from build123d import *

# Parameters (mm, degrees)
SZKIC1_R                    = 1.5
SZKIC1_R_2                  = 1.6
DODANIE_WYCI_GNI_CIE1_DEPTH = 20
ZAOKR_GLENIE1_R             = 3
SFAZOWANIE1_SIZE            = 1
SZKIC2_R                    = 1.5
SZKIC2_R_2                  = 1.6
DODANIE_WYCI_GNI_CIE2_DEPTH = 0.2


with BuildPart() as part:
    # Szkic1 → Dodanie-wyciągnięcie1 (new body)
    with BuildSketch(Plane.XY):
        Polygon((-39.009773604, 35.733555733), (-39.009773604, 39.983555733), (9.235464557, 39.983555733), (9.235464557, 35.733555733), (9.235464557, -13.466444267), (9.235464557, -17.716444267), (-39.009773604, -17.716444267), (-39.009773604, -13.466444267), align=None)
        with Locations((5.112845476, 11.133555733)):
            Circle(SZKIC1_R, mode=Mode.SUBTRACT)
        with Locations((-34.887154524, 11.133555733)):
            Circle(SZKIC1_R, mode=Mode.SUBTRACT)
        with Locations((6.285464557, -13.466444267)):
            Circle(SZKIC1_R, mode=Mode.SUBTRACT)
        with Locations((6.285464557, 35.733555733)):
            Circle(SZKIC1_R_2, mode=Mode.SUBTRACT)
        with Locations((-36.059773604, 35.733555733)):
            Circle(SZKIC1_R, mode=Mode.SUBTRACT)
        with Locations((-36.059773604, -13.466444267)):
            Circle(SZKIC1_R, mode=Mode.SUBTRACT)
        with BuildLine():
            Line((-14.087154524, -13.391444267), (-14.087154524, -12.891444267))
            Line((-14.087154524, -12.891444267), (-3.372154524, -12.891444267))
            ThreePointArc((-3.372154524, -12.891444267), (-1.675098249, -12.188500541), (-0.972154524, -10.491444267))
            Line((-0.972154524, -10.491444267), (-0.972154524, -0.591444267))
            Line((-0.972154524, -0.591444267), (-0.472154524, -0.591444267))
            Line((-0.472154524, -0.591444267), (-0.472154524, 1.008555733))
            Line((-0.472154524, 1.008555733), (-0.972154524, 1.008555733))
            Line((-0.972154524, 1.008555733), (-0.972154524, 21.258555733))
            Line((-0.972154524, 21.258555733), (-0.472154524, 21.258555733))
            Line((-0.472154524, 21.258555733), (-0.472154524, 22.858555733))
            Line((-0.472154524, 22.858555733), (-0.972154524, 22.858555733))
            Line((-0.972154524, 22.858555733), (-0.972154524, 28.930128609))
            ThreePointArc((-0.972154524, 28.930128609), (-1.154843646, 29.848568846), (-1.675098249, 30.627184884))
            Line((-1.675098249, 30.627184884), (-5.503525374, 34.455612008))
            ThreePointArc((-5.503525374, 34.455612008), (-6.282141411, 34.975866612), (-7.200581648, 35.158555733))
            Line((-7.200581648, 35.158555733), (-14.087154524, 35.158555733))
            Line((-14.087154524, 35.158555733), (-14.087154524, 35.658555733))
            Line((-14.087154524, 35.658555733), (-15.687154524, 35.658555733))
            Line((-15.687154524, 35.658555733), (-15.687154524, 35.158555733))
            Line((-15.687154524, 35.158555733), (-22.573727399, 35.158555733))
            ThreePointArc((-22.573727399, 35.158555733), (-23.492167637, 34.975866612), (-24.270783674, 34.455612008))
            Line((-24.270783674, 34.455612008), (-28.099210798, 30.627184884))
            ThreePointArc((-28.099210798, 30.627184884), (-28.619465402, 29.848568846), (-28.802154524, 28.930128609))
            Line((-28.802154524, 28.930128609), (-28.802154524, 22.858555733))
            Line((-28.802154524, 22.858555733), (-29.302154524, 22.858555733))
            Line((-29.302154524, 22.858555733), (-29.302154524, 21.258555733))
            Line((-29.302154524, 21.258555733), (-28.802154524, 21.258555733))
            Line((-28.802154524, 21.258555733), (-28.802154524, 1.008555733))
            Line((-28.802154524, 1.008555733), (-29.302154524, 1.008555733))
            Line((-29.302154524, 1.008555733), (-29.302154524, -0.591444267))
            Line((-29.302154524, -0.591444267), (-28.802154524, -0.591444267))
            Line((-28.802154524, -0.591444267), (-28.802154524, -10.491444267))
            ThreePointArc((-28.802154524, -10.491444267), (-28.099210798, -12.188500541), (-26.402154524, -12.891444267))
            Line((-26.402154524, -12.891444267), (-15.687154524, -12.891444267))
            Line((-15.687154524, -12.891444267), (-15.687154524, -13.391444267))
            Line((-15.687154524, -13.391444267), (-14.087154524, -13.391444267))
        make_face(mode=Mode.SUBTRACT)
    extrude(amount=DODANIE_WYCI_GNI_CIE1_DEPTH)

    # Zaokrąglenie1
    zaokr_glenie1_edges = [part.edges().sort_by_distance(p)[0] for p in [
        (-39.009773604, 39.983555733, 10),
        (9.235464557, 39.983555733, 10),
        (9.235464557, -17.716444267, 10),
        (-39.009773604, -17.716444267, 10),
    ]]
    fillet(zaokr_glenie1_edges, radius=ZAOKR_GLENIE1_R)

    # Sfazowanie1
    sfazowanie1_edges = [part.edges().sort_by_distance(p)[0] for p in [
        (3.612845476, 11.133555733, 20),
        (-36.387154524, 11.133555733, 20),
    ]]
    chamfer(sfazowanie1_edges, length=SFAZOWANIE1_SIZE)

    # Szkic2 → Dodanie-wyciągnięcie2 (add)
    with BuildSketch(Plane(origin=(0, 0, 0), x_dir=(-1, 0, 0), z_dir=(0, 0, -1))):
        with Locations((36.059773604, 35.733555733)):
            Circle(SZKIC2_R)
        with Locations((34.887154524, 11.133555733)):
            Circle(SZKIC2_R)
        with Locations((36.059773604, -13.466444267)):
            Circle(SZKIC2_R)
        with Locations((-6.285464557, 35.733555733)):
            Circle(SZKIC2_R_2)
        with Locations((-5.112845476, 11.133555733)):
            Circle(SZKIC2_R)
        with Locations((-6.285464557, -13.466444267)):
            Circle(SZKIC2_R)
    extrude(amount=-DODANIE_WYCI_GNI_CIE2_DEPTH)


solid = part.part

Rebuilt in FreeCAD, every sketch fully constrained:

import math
import FreeCAD as App
import Part
import Sketcher

V = App.Vector
Q = App.Units.Quantity


def edges_at(feature, points):
    """Names of the edges that pass closest to the given points."""
    edges = feature.Shape.Edges
    near = lambda p: min(range(len(edges)), key=lambda i: edges[i].distToShape(Part.Vertex(*p))[0])
    return sorted({f"Edge{near(p) + 1}" for p in points})

doc = App.newDocument("Part")
body = doc.addObject("PartDesign::Body", "Body")

sketch1 = body.newObject("Sketcher::SketchObject", "Sketch")
sketch1.AttachmentSupport = (doc.getObject("XY_Plane"), [""])
sketch1.MapMode = "FlatFace"
sketch1.addGeometry([
    Part.LineSegment(V(-39, 40, 0), V(-39, -17.7, 0)),
    Part.LineSegment(V(-39, -17.7, 0), V(9.2, -17.7, 0)),
    Part.LineSegment(V(9.2, -17.7, 0), V(9.2, 40, 0)),
    Part.LineSegment(V(9.2, 40, 0), V(-39, 40, 0)),
    Part.Circle(V(6.3, -13.5, 0), V(0, 0, 1), 1.5),
    Part.Circle(V(5.1, 11.1, 0), V(0, 0, 1), 1.5),
    Part.Circle(V(-36.1, -13.5, 0), V(0, 0, 1), 1.5),
    Part.LineSegment(V(-14.1, -13.4, 0), V(-15.7, -13.4, 0)),
    Part.LineSegment(V(-15.7, -13.4, 0), V(-15.7, -12.9, 0)),
    Part.LineSegment(V(-15.7, -12.9, 0), V(-26.4, -12.9, 0)),
    Part.ArcOfCircle(Part.Circle(V(-26.4, -10.5, 0), V(0, 0, 1), 2.4), math.radians(-180), math.radians(-90)),
    Part.LineSegment(V(-28.8, -10.5, 0), V(-28.8, -0.6, 0)),
    Part.LineSegment(V(-28.8, -0.6, 0), V(-29.3, -0.6, 0)),
    Part.LineSegment(V(-29.3, -0.6, 0), V(-29.3, 1, 0)),
    Part.LineSegment(V(-29.3, 1, 0), V(-28.8, 1, 0)),
    Part.LineSegment(V(-28.8, 1, 0), V(-28.8, 21.3, 0)),
    Part.LineSegment(V(-28.8, 21.3, 0), V(-29.3, 21.3, 0)),
    Part.LineSegment(V(-29.3, 21.3, 0), V(-29.3, 22.9, 0)),
    Part.LineSegment(V(-29.3, 22.9, 0), V(-28.8, 22.9, 0)),
    Part.LineSegment(V(-28.8, 22.9, 0), V(-28.8, 28.9, 0)),
    Part.ArcOfCircle(Part.Circle(V(-26.4, 28.9, 0), V(0, 0, 1), 2.4), math.radians(135), math.radians(180)),
    Part.LineSegment(V(-28.1, 30.6, 0), V(-24.3, 34.5, 0)),
    Part.ArcOfCircle(Part.Circle(V(-22.6, 32.8, 0), V(0, 0, 1), 2.4), math.radians(90), math.radians(135)),
    Part.LineSegment(V(-22.6, 35.2, 0), V(-15.7, 35.2, 0)),
    Part.LineSegment(V(-15.7, 35.2, 0), V(-15.7, 35.7, 0)),
    Part.LineSegment(V(-15.7, 35.7, 0), V(-14.1, 35.7, 0)),
    Part.LineSegment(V(-14.1, 35.7, 0), V(-14.1, 35.2, 0)),
    Part.LineSegment(V(-14.1, 35.2, 0), V(-7.2, 35.2, 0)),
    Part.ArcOfCircle(Part.Circle(V(-7.2, 32.8, 0), V(0, 0, 1), 2.4), math.radians(45), math.radians(90)),
    Part.LineSegment(V(-5.5, 34.5, 0), V(-1.7, 30.6, 0)),
    Part.ArcOfCircle(Part.Circle(V(-3.4, 28.9, 0), V(0, 0, 1), 2.4), math.radians(0), math.radians(45)),
    Part.LineSegment(V(-1, 28.9, 0), V(-1, 22.9, 0)),
    Part.LineSegment(V(-1, 22.9, 0), V(-0.5, 22.9, 0)),
    Part.LineSegment(V(-0.5, 22.9, 0), V(-0.5, 21.3, 0)),
    Part.LineSegment(V(-0.5, 21.3, 0), V(-1, 21.3, 0)),
    Part.LineSegment(V(-1, 21.3, 0), V(-1, 1, 0)),
    Part.LineSegment(V(-1, 1, 0), V(-0.5, 1, 0)),
    Part.LineSegment(V(-0.5, 1, 0), V(-0.5, -0.6, 0)),
    Part.LineSegment(V(-0.5, -0.6, 0), V(-1, -0.6, 0)),
    Part.LineSegment(V(-1, -0.6, 0), V(-1, -10.5, 0)),
    Part.ArcOfCircle(Part.Circle(V(-3.4, -10.5, 0), V(0, 0, 1), 2.4), math.radians(-90), math.radians(0)),
    Part.LineSegment(V(-3.4, -12.9, 0), V(-14.1, -12.9, 0)),
    Part.LineSegment(V(-14.1, -12.9, 0), V(-14.1, -13.4, 0)),
    Part.Circle(V(-34.9, 11.1, 0), V(0, 0, 1), 1.5),
    Part.Circle(V(6.3, 35.7, 0), V(0, 0, 1), 1.6),
    Part.Circle(V(-36.1, 35.7, 0), V(0, 0, 1), 1.5),
], False)
sketch1.addConstraint([
    Sketcher.Constraint("Coincident", 0, 2, 1, 1),
    Sketcher.Constraint("Coincident", 1, 2, 2, 1),
    Sketcher.Constraint("Coincident", 2, 2, 3, 1),
    Sketcher.Constraint("Coincident", 3, 2, 0, 1),
    Sketcher.Constraint("Coincident", 7, 2, 8, 1),
    Sketcher.Constraint("Coincident", 8, 2, 9, 1),
    Sketcher.Constraint("Tangent", 9, 2, 10, 2),
    Sketcher.Constraint("Tangent", 10, 1, 11, 1),
    Sketcher.Constraint("Coincident", 11, 2, 12, 1),
    Sketcher.Constraint("Coincident", 12, 2, 13, 1),
    Sketcher.Constraint("Coincident", 13, 2, 14, 1),
    Sketcher.Constraint("Coincident", 14, 2, 15, 1),
    Sketcher.Constraint("Coincident", 15, 2, 16, 1),
    Sketcher.Constraint("Coincident", 16, 2, 17, 1),
    Sketcher.Constraint("Coincident", 17, 2, 18, 1),
    Sketcher.Constraint("Coincident", 18, 2, 19, 1),
    Sketcher.Constraint("Tangent", 19, 2, 20, 2),
    Sketcher.Constraint("Tangent", 20, 1, 21, 1),
    Sketcher.Constraint("Tangent", 21, 2, 22, 2),
    Sketcher.Constraint("Tangent", 22, 1, 23, 1),
    Sketcher.Constraint("Coincident", 23, 2, 24, 1),
    Sketcher.Constraint("Coincident", 24, 2, 25, 1),
    Sketcher.Constraint("Coincident", 25, 2, 26, 1),
    Sketcher.Constraint("Coincident", 26, 2, 27, 1),
    Sketcher.Constraint("Tangent", 27, 2, 28, 2),
    Sketcher.Constraint("Tangent", 28, 1, 29, 1),
    Sketcher.Constraint("Tangent", 29, 2, 30, 2),
    Sketcher.Constraint("Tangent", 30, 1, 31, 1),
    Sketcher.Constraint("Coincident", 31, 2, 32, 1),
    Sketcher.Constraint("Coincident", 32, 2, 33, 1),
    Sketcher.Constraint("Coincident", 33, 2, 34, 1),
    Sketcher.Constraint("Coincident", 34, 2, 35, 1),
    Sketcher.Constraint("Coincident", 35, 2, 36, 1),
    Sketcher.Constraint("Coincident", 36, 2, 37, 1),
    Sketcher.Constraint("Coincident", 37, 2, 38, 1),
    Sketcher.Constraint("Coincident", 38, 2, 39, 1),
    Sketcher.Constraint("Tangent", 39, 2, 40, 2),
    Sketcher.Constraint("Tangent", 40, 1, 41, 1),
    Sketcher.Constraint("Coincident", 41, 2, 42, 1),
    Sketcher.Constraint("Coincident", 42, 2, 7, 1),
    Sketcher.Constraint("Vertical", 0),
    Sketcher.Constraint("Horizontal", 1),
    Sketcher.Constraint("Vertical", 2),
    Sketcher.Constraint("Horizontal", 3),
    Sketcher.Constraint("Horizontal", 7),
    Sketcher.Constraint("Vertical", 8),
    Sketcher.Constraint("Horizontal", 9),
    Sketcher.Constraint("Vertical", 11),
    Sketcher.Constraint("Horizontal", 12),
    Sketcher.Constraint("Vertical", 13),
    Sketcher.Constraint("Horizontal", 14),
    Sketcher.Constraint("Vertical", 15),
    Sketcher.Constraint("Horizontal", 16),
    Sketcher.Constraint("Vertical", 17),
    Sketcher.Constraint("Horizontal", 18),
    Sketcher.Constraint("Vertical", 19),
    Sketcher.Constraint("Horizontal", 23),
    Sketcher.Constraint("Vertical", 24),
    Sketcher.Constraint("Horizontal", 25),
    Sketcher.Constraint("Vertical", 26),
    Sketcher.Constraint("Horizontal", 27),
    Sketcher.Constraint("Vertical", 31),
    Sketcher.Constraint("Horizontal", 32),
    Sketcher.Constraint("Vertical", 33),
    Sketcher.Constraint("Horizontal", 34),
    Sketcher.Constraint("Vertical", 35),
    Sketcher.Constraint("Horizontal", 36),
    Sketcher.Constraint("Vertical", 37),
    Sketcher.Constraint("Horizontal", 38),
    Sketcher.Constraint("Vertical", 39),
    Sketcher.Constraint("Horizontal", 41),
    Sketcher.Constraint("Vertical", 42),
    Sketcher.Constraint("Equal", 4, 5),
    Sketcher.Constraint("Equal", 5, 6),
    Sketcher.Constraint("Equal", 10, 20),
    Sketcher.Constraint("Equal", 20, 22),
    Sketcher.Constraint("Equal", 22, 28),
    Sketcher.Constraint("Equal", 28, 30),
    Sketcher.Constraint("Equal", 30, 40),
    Sketcher.Constraint("Equal", 6, 43),
    Sketcher.Constraint("Equal", 43, 45),
    Sketcher.Constraint("Perpendicular", 21, 29),
    Sketcher.Constraint("Horizontal", 4, 3, 6, 3),
    Sketcher.Constraint("Horizontal", 22, 3, 28, 3),
    Sketcher.Constraint("Horizontal", 20, 3, 30, 3),
    Sketcher.Constraint("Horizontal", 10, 3, 40, 3),
    Sketcher.Constraint("Horizontal", 5, 3, 43, 3),
    Sketcher.Constraint("Horizontal", 44, 3, 45, 3),
    Sketcher.Constraint("Horizontal", 21, 2, 28, 1),
    Sketcher.Constraint("Horizontal", 18, 2, 31, 2),
    Sketcher.Constraint("Horizontal", 16, 2, 33, 2),
    Sketcher.Constraint("Horizontal", 14, 2, 35, 2),
    Sketcher.Constraint("Horizontal", 12, 2, 37, 2),
    Sketcher.Constraint("Vertical", 10, 3, 20, 3),
    Sketcher.Constraint("Vertical", 30, 3, 40, 3),
    Sketcher.Constraint("Vertical", 4, 3, 44, 3),
    Sketcher.Constraint("Vertical", 6, 3, 45, 3),
    Sketcher.Constraint("Vertical", 11, 2, 14, 2),
    Sketcher.Constraint("Vertical", 13, 2, 16, 2),
    Sketcher.Constraint("Vertical", 8, 2, 23, 2),
    Sketcher.Constraint("Vertical", 31, 2, 34, 2),
    Sketcher.Constraint("Vertical", 33, 2, 36, 2),
    Sketcher.Constraint("Vertical", 26, 2, 41, 2),
    Sketcher.Constraint("Equal", 23, 27),
    Sketcher.Constraint("Equal", 18, 32),
    Sketcher.Constraint("Equal", 38, 8),
    Sketcher.Constraint("Equal", 25, 13),
    Sketcher.Constraint("Equal", 13, 17),
    Sketcher.Constraint("Equal", 8, 24),
    Sketcher.Constraint("Diameter", 4, Q("3 mm")),
    Sketcher.Constraint("Diameter", 44, Q("3.2 mm")),
    Sketcher.Constraint("Radius", 10, Q("2.4 mm")),
    Sketcher.Constraint("DistanceX", 7, 2, 7, 1, Q("1.6 mm")),
    Sketcher.Constraint("DistanceX", 12, 2, 12, 1, Q("0.5 mm")),
    Sketcher.Constraint("DistanceY", 0, 2, 0, 1, Q("57.7 mm")),
    Sketcher.Constraint("DistanceY", 11, 1, 11, 2, Q("9.9 mm")),
    Sketcher.Constraint("DistanceY", 15, 1, 15, 2, Q("20.25 mm")),
    Sketcher.Constraint("DistanceY", 4, 3, 5, 3, Q("24.6 mm")),
    Sketcher.Constraint("DistanceY", 5, 3, 44, 3, Q("24.6 mm")),
    Sketcher.Constraint("DistanceY", 15, 2, 22, 3, Q("11.5 mm")),
    Sketcher.Constraint("DistanceX", 9, 2, 9, 1, Q("10.715 mm")),
    Sketcher.Constraint("DistanceX", 0, 2, 6, 3, Q("2.95 mm")),
    Sketcher.Constraint("DistanceY", 0, 2, 6, 3, Q("4.25 mm")),
    Sketcher.Constraint("DistanceX", 4, 3, 1, 2, Q("2.95 mm")),
    Sketcher.Constraint("DistanceY", 6, 3, 10, 3, Q("2.975 mm")),
    Sketcher.Constraint("DistanceX", 10, 3, 5, 3, Q("31.515 mm")),
    Sketcher.Constraint("DistanceX", 43, 3, 20, 3, Q("8.485 mm")),
    Sketcher.Constraint("DistanceX", 1, 1, 1, 2, Q("48.245238 mm")),
    Sketcher.Constraint("DistanceX", 29, 2, -1, 1, Q("1.675098 mm")),
    Sketcher.Constraint("DistanceX", 23, 1, 23, 2, Q("6.886573 mm")),
    Sketcher.Constraint("DistanceY", -1, 1, 20, 3, Q("28.930129 mm")),
    Sketcher.Constraint("DistanceX", 5, 3, 4, 3, Q("1.172619 mm")),
])
pad1 = body.newObject("PartDesign::Pad", "Pad")
pad1.Profile = sketch1
pad1.Length = 20
doc.recompute()

fillet = body.newObject("PartDesign::Fillet", "Fillet")
fillet.Base = (pad1, edges_at(pad1, [
    (-39.01, 39.984, 10),
    (9.235, 39.984, 10),
    (9.235, -17.716, 10),
    (-39.01, -17.716, 10),
]))
fillet.Radius = 3
doc.recompute()

chamfer = body.newObject("PartDesign::Chamfer", "Chamfer")
chamfer.Base = (fillet, edges_at(fillet, [(3.613, 11.134, 20), (-36.387, 11.134, 20)]))
chamfer.Size = 1

sketch2 = body.newObject("Sketcher::SketchObject", "Sketch001")
sketch2.AttachmentSupport = (doc.getObject("XY_Plane"), [""])
sketch2.MapMode = "FlatFace"
sketch2.addGeometry([
    Part.Circle(V(-36.1, 35.7, 0), V(0, 0, 1), 1.5),
    Part.Circle(V(-34.9, 11.1, 0), V(0, 0, 1), 1.5),
    Part.Circle(V(-36.1, -13.5, 0), V(0, 0, 1), 1.5),
    Part.Circle(V(6.3, 35.7, 0), V(0, 0, 1), 1.6),
    Part.Circle(V(5.1, 11.1, 0), V(0, 0, 1), 1.5),
    Part.Circle(V(6.3, -13.5, 0), V(0, 0, 1), 1.5),
], False)
sketch2.addConstraint([
    Sketcher.Constraint("Equal", 0, 1),
    Sketcher.Constraint("Equal", 1, 2),
    Sketcher.Constraint("Equal", 2, 4),
    Sketcher.Constraint("Equal", 4, 5),
    Sketcher.Constraint("Horizontal", 0, 3, 3, 3),
    Sketcher.Constraint("Horizontal", 1, 3, 4, 3),
    Sketcher.Constraint("Horizontal", 2, 3, 5, 3),
    Sketcher.Constraint("Vertical", 0, 3, 2, 3),
    Sketcher.Constraint("Vertical", 3, 3, 5, 3),
    Sketcher.Constraint("Diameter", 0, Q("3 mm")),
    Sketcher.Constraint("Diameter", 3, Q("3.2 mm")),
    Sketcher.Constraint("DistanceX", 1, 3, 4, 3, Q("40 mm")),
    Sketcher.Constraint("DistanceY", 1, 3, 0, 3, Q("24.6 mm")),
    Sketcher.Constraint("DistanceY", 2, 3, 1, 3, Q("24.6 mm")),
    Sketcher.Constraint("DistanceX", 0, 3, 1, 3, Q("1.172619 mm")),
    Sketcher.Constraint("DistanceX", 0, 3, 3, 3, Q("42.345238 mm")),
    Sketcher.Constraint("DistanceX", 0, 3, -1, 1, Q("36.059774 mm")),
    Sketcher.Constraint("DistanceY", -1, 1, 0, 3, Q("35.733556 mm")),
])
pad2 = body.newObject("PartDesign::Pad", "Pad001")
pad2.Profile = sketch2
pad2.Length = 0.2

doc.recompute()
